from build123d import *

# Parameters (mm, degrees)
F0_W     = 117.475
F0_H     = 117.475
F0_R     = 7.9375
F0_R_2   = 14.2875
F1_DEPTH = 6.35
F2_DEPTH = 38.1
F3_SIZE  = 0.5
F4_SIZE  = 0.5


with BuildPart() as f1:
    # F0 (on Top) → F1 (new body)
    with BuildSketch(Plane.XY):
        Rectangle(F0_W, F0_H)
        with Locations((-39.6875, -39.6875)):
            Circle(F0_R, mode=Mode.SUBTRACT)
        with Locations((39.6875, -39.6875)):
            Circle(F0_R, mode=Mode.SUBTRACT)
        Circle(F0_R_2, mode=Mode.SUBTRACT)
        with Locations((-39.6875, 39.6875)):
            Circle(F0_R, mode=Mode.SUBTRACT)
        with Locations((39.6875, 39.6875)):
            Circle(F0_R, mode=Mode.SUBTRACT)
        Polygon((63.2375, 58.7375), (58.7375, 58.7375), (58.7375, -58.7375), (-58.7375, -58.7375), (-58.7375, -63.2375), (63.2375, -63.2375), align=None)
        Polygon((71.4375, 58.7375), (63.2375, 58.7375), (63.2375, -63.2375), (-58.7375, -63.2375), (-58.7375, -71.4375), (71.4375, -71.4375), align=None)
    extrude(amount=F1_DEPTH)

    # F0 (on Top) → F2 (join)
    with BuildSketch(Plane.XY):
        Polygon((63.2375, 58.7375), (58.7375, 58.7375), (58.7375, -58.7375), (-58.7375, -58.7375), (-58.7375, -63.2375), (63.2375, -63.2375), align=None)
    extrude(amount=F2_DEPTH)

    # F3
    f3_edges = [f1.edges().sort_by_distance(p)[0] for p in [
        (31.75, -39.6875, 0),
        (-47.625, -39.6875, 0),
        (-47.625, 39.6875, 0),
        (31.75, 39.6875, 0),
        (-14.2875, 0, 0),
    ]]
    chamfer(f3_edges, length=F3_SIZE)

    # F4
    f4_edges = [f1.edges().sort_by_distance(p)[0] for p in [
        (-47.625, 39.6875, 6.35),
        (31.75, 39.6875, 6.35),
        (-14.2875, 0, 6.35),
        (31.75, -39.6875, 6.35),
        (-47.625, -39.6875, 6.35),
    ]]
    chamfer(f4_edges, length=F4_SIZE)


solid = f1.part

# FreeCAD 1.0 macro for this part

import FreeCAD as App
import Part
import Sketcher
from FreeCAD import Vector
Q = App.Units.Quantity


def edges_at(feature, points):
    """Names of the edges that pass closest to the given points."""
    edges = feature.Shape.Edges
    near = lambda p: min(range(len(edges)), key=lambda i: edges[i].distToShape(Part.Vertex(*p))[0])
    return sorted({f"Edge{near(p) + 1}" for p in points})

doc = App.newDocument("Part")
body = doc.addObject("PartDesign::Body", "Body")

# Sketch on XY plane
sketch1 = body.newObject("Sketcher::SketchObject", "Sketch")
sketch1.AttachmentSupport = (doc.getObject("XY_Plane"), [""])
sketch1.MapMode = "FlatFace"
sketch1.addGeometry(Part.LineSegment(Vector(-59, 59, 0), Vector(-59, -71, 0)), False)
sketch1.addGeometry(Part.LineSegment(Vector(-59, -71, 0), Vector(71, -71, 0)), False)
sketch1.addGeometry(Part.LineSegment(Vector(71, -71, 0), Vector(71, 59, 0)), False)
sketch1.addGeometry(Part.LineSegment(Vector(71, 59, 0), Vector(-59, 59, 0)), False)
sketch1.addGeometry(Part.Circle(Vector(-40, -40, 0), Vector(0, 0, 1), 8), False)
sketch1.addGeometry(Part.Circle(Vector(40, -40, 0), Vector(0, 0, 1), 8), False)
sketch1.addGeometry(Part.Circle(Vector(-40, 40, 0), Vector(0, 0, 1), 8), False)
sketch1.addGeometry(Part.Circle(Vector(0, 0, 0), Vector(0, 0, 1), 14), False)
sketch1.addGeometry(Part.Circle(Vector(40, 40, 0), Vector(0, 0, 1), 8), False)
sketch1.addConstraint(Sketcher.Constraint("Coincident", 0, 2, 1, 1))
sketch1.addConstraint(Sketcher.Constraint("Coincident", 1, 2, 2, 1))
sketch1.addConstraint(Sketcher.Constraint("Coincident", 2, 2, 3, 1))
sketch1.addConstraint(Sketcher.Constraint("Coincident", 3, 2, 0, 1))
sketch1.addConstraint(Sketcher.Constraint("Vertical", 0))
sketch1.addConstraint(Sketcher.Constraint("Horizontal", 1))
sketch1.addConstraint(Sketcher.Constraint("Vertical", 2))
sketch1.addConstraint(Sketcher.Constraint("Horizontal", 3))
sketch1.addConstraint(Sketcher.Constraint("Coincident", 7, 3, -1, 1))
sketch1.addConstraint(Sketcher.Constraint("Equal", 4, 5))
sketch1.addConstraint(Sketcher.Constraint("Equal", 5, 6))
sketch1.addConstraint(Sketcher.Constraint("Equal", 6, 8))
sketch1.addConstraint(Sketcher.Constraint("Symmetric", 5, 3, 6, 3, -1, 1))
sketch1.addConstraint(Sketcher.Constraint("Symmetric", 4, 3, 8, 3, -1, 1))
sketch1.addConstraint(Sketcher.Constraint("Symmetric", 4, 3, 5, 3, -2))
sketch1.addConstraint(Sketcher.Constraint("Equal", 3, 0))
sketch1.addConstraint(Sketcher.Constraint("Diameter", 4, Q("0.625 in")))
sketch1.addConstraint(Sketcher.Constraint("Diameter", 7, Q("1.125 in")))
sketch1.addConstraint(Sketcher.Constraint("DistanceX", 1, 1, 1, 2, Q("5.125 in")))
sketch1.addConstraint(Sketcher.Constraint("DistanceX", 0, 2, 4, 3, Q("0.75 in")))
sketch1.addConstraint(Sketcher.Constraint("DistanceY", 0, 2, 4, 3, Q("1.25 in")))
sketch1.addConstraint(Sketcher.Constraint("DistanceX", 5, 3, 1, 2, Q("1.25 in")))
sketch1.addConstraint(Sketcher.Constraint("DistanceY", 8, 3, 2, 2, Q("0.75 in")))
pad1 = body.newObject("PartDesign::Pad", "Pad")
pad1.Profile = sketch1
pad1.Length = Q("0.25 in")

# Sketch on XY plane
sketch2 = body.newObject("Sketcher::SketchObject", "Sketch001")
sketch2.AttachmentSupport = (doc.getObject("XY_Plane"), [""])
sketch2.MapMode = "FlatFace"
sketch2.addGeometry(Part.LineSegment(Vector(63.2, 58.7, 0), Vector(58.7, 58.7, 0)), False)
sketch2.addGeometry(Part.LineSegment(Vector(58.7, 58.7, 0), Vector(58.7, -58.7, 0)), False)
sketch2.addGeometry(Part.LineSegment(Vector(58.7, -58.7, 0), Vector(-58.7, -58.7, 0)), False)
sketch2.addGeometry(Part.LineSegment(Vector(-58.7, -58.7, 0), Vector(-58.7, -63.2, 0)), False)
sketch2.addGeometry(Part.LineSegment(Vector(-58.7, -63.2, 0), Vector(63.2, -63.2, 0)), False)
sketch2.addGeometry(Part.LineSegment(Vector(63.2, -63.2, 0), Vector(63.2, 58.7, 0)), False)
sketch2.addConstraint(Sketcher.Constraint("Coincident", 0, 2, 1, 1))
sketch2.addConstraint(Sketcher.Constraint("Coincident", 1, 2, 2, 1))
sketch2.addConstraint(Sketcher.Constraint("Coincident", 2, 2, 3, 1))
sketch2.addConstraint(Sketcher.Constraint("Coincident", 3, 2, 4, 1))
sketch2.addConstraint(Sketcher.Constraint("Coincident", 4, 2, 5, 1))
sketch2.addConstraint(Sketcher.Constraint("Coincident", 5, 2, 0, 1))
sketch2.addConstraint(Sketcher.Constraint("Horizontal", 0))
sketch2.addConstraint(Sketcher.Constraint("Vertical", 1))
sketch2.addConstraint(Sketcher.Constraint("Horizontal", 2))
sketch2.addConstraint(Sketcher.Constraint("Vertical", 3))
sketch2.addConstraint(Sketcher.Constraint("Horizontal", 4))
sketch2.addConstraint(Sketcher.Constraint("Vertical", 5))
sketch2.addConstraint(Sketcher.Constraint("Symmetric", 0, 2, 2, 2, -1, 1))
sketch2.addConstraint(Sketcher.Constraint("Equal", 2, 1))
sketch2.addConstraint(Sketcher.Constraint("Equal", 0, 3))
sketch2.addConstraint(Sketcher.Constraint("DistanceX", 2, 2, 2, 1, Q("4.625 in")))
sketch2.addConstraint(Sketcher.Constraint("DistanceX", 0, 2, 0, 1, 4.5))
pad2 = body.newObject("PartDesign::Pad", "Pad001")
pad2.Profile = sketch2
pad2.Length = Q("1.5 in")
doc.recompute()

chamfer = body.newObject("PartDesign::Chamfer", "Chamfer")
chamfer.Base = (pad2, edges_at(pad2, [
    (31.75, -39.688, 0),
    (-47.625, -39.688, 0),
    (-47.625, 39.688, 0),
    (31.75, 39.688, 0),
    (-14.287, 0, 0),
]))
chamfer.Size = 0.5
doc.recompute()

chamfer2 = body.newObject("PartDesign::Chamfer", "Chamfer001")
chamfer2.Base = (chamfer, edges_at(chamfer, [
    (-47.625, 39.688, 6.35),
    (31.75, 39.688, 6.35),
    (-14.287, 0, 6.35),
    (31.75, -39.688, 6.35),
    (-47.625, -39.688, 6.35),
]))
chamfer2.Size = 0.5

doc.recompute()
